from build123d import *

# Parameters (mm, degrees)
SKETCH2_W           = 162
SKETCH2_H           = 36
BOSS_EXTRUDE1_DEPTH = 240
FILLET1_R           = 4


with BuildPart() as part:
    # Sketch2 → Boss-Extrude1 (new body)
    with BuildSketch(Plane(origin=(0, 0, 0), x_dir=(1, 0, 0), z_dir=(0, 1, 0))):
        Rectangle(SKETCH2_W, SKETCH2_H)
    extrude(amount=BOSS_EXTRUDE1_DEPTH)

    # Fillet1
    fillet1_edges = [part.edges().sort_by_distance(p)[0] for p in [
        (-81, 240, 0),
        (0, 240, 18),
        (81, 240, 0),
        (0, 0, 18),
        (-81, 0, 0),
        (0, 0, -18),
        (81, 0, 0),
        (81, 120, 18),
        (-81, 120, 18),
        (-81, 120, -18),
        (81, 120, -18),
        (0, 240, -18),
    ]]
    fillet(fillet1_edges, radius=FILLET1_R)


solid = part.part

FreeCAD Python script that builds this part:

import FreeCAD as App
import Part
import Sketcher

doc = App.newDocument("Part")
body = doc.addObject("PartDesign::Body", "Body")

sketch1 = doc.addObject("Sketcher::SketchObject", "Sketch")
body.addObject(sketch1)
sketch1.AttachmentSupport = (doc.XZ_Plane, [""])
sketch1.MapMode = "FlatFace"
sketch1.addGeometry([
    Part.LineSegment(App.Vector(-81, -18, 0), App.Vector(-81, 18, 0)),
    Part.LineSegment(App.Vector(-81, 18, 0), App.Vector(81, 18, 0)),
    Part.LineSegment(App.Vector(81, 18, 0), App.Vector(81, -18, 0)),
    Part.LineSegment(App.Vector(81, -18, 0), App.Vector(-81, -18, 0)),
], False)
sketch1.addConstraint([
    Sketcher.Constraint("Coincident", 0, 2, 1, 1),
    Sketcher.Constraint("Coincident", 1, 2, 2, 1),
    Sketcher.Constraint("Coincident", 2, 2, 3, 1),
    Sketcher.Constraint("Coincident", 3, 2, 0, 1),
    Sketcher.Constraint("Vertical", 0),
    Sketcher.Constraint("Horizontal", 1),
    Sketcher.Constraint("Vertical", 2),
    Sketcher.Constraint("Horizontal", 3),
    Sketcher.Constraint("Symmetric", 0, 2, 2, 2, -1, 1),
    Sketcher.Constraint("DistanceX", 1, 1, 1, 2, 162.0),
    Sketcher.Constraint("DistanceY", 0, 1, 0, 2, 36.0),
])
pad1 = doc.addObject("PartDesign::Pad", "Pad")
body.addObject(pad1)
pad1.Profile = sketch1
pad1.Length = 240
pad1.Reversed = True
doc.recompute()

fillet = doc.addObject("PartDesign::Fillet", "Fillet")
body.addObject(fillet)
fillet.Base = (pad1, ["Edge1"])
fillet.UseAllEdges = True
fillet.Radius = 4

doc.recompute()
